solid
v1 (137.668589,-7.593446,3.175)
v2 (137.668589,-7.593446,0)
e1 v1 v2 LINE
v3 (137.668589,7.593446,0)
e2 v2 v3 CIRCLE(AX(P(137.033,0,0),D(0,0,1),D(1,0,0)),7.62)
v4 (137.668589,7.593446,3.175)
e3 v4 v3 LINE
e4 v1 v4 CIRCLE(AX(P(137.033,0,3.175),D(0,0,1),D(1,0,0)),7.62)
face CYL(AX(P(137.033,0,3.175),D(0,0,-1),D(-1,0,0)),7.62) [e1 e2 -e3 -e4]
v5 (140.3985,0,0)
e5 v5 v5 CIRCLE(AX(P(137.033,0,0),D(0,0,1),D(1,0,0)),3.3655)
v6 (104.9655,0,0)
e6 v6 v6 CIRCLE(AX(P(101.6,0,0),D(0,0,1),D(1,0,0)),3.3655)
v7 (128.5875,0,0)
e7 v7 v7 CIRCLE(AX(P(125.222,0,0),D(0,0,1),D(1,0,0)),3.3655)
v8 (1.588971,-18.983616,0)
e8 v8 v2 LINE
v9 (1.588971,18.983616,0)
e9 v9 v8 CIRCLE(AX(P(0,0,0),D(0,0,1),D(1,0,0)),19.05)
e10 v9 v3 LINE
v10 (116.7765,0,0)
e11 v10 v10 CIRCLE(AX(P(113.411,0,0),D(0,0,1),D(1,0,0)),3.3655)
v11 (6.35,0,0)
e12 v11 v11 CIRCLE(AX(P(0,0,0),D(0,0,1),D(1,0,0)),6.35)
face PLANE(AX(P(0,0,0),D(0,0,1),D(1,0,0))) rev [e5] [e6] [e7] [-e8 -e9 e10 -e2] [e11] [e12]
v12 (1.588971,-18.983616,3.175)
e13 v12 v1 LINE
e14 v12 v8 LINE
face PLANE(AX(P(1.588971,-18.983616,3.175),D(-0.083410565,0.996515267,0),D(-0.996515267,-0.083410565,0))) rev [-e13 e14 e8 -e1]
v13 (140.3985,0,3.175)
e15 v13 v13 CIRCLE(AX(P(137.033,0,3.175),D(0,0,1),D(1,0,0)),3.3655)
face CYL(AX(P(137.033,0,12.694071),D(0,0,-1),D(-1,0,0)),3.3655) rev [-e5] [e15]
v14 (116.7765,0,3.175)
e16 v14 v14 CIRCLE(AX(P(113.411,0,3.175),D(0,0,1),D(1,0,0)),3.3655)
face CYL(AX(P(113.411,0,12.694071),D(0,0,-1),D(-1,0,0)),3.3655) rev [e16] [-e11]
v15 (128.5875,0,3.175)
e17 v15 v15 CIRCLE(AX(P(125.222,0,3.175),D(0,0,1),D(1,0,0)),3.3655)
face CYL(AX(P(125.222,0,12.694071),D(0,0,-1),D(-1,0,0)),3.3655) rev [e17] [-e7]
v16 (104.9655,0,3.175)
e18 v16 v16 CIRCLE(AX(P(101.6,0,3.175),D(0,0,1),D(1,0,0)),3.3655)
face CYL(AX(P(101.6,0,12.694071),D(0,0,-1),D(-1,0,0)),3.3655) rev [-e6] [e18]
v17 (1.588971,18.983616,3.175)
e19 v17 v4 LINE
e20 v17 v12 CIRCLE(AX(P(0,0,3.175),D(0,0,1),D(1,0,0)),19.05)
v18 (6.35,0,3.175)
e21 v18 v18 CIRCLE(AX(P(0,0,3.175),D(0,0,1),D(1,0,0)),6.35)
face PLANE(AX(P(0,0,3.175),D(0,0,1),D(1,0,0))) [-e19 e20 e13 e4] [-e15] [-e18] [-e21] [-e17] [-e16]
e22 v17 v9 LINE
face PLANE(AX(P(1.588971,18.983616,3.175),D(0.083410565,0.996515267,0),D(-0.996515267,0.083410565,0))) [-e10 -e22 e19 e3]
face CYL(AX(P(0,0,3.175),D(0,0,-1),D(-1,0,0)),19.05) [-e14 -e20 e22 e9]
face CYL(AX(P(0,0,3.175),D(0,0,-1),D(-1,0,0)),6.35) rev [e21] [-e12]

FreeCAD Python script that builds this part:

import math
import FreeCAD as App
import Part
import Sketcher
Q = App.Units.Quantity

doc = App.newDocument("Part")
body = doc.addObject("PartDesign::Body", "Body")

sketch1 = body.newObject("Sketcher::SketchObject", "Sketch")
sketch1.AttachmentSupport = (doc.getObject("XY_Plane"), [""])
sketch1.MapMode = "FlatFace"
sketch1.addGeometry(Part.ArcOfCircle(Part.Circle(App.Vector(0, 0, 0), App.Vector(0, 0, 1), 19), math.radians(85), math.radians(275)), False)
sketch1.addGeometry(Part.LineSegment(App.Vector(2, -19, 0), App.Vector(138, -8, 0)), False)
sketch1.addGeometry(Part.ArcOfCircle(Part.Circle(App.Vector(137, 0, 0), App.Vector(0, 0, 1), 8), math.radians(-85), math.radians(85)), False)
sketch1.addGeometry(Part.LineSegment(App.Vector(138, 8, 0), App.Vector(2, 19, 0)), False)
sketch1.addGeometry(Part.Circle(App.Vector(0, 0, 0), App.Vector(0, 0, 1), 6), False)
sketch1.addConstraint(Sketcher.Constraint("Tangent", 0, 2, 1, 1))
sketch1.addConstraint(Sketcher.Constraint("Tangent", 1, 2, 2, 1))
sketch1.addConstraint(Sketcher.Constraint("Tangent", 2, 2, 3, 1))
sketch1.addConstraint(Sketcher.Constraint("Tangent", 3, 2, 0, 1))
sketch1.addConstraint(Sketcher.Constraint("Coincident", 0, 3, -1, 1))
sketch1.addConstraint(Sketcher.Constraint("Coincident", 4, 3, -1, 1))
sketch1.addConstraint(Sketcher.Constraint("PointOnObject", 2, 3, -1))
sketch1.addConstraint(Sketcher.Constraint("Diameter", 4, Q("0.5 in")))
sketch1.addConstraint(Sketcher.Constraint("Radius", 2, Q("0.3 in")))
sketch1.addConstraint(Sketcher.Constraint("Radius", 0, Q("0.75 in")))
sketch1.addConstraint(Sketcher.Constraint("DistanceX", -1, 1, 2, 3, Q("5.395 in")))
pad1 = body.newObject("PartDesign::Pad", "Pad")
pad1.Profile = sketch1
pad1.Length = Q("0.125 in")

sketch2 = body.newObject("Sketcher::SketchObject", "Sketch001")
sketch2.AttachmentSupport = (doc.getObject("XY_Plane"), [""])
sketch2.MapMode = "FlatFace"
sketch2.addGeometry(Part.Circle(App.Vector(137, 0, 0), App.Vector(0, 0, 1), 3.4), False)
sketch2.addGeometry(Part.Circle(App.Vector(125.2, 0, 0), App.Vector(0, 0, 1), 3.4), False)
sketch2.addGeometry(Part.Circle(App.Vector(113.4, 0, 0), App.Vector(0, 0, 1), 3.4), False)
sketch2.addGeometry(Part.Circle(App.Vector(101.6, 0, 0), App.Vector(0, 0, 1), 3.4), False)
sketch2.addConstraint(Sketcher.Constraint("Equal", 0, 1))
sketch2.addConstraint(Sketcher.Constraint("Equal", 1, 2))
sketch2.addConstraint(Sketcher.Constraint("Equal", 2, 3))
sketch2.addConstraint(Sketcher.Constraint("PointOnObject", 0, 3, -1))
sketch2.addConstraint(Sketcher.Constraint("PointOnObject", 1, 3, -1))
sketch2.addConstraint(Sketcher.Constraint("PointOnObject", 2, 3, -1))
sketch2.addConstraint(Sketcher.Constraint("PointOnObject", 3, 3, -1))
sketch2.addConstraint(Sketcher.Constraint("Diameter", 0, Q("0.265 in")))
sketch2.addConstraint(Sketcher.Constraint("DistanceX", -1, 1, 3, 3, Q("4 in")))
sketch2.addConstraint(Sketcher.Constraint("DistanceX", -1, 1, 1, 3, Q("4.93 in")))
sketch2.addConstraint(Sketcher.Constraint("DistanceX", 2, 3, 0, 3, Q("0.93 in")))
sketch2.addConstraint(Sketcher.Constraint("DistanceX", -1, 1, 0, 3, Q("5.395 in")))
pocket1 = body.newObject("PartDesign::Pocket", "Pocket")
pocket1.Profile = sketch2
pocket1.Length = Q("0.125 in")
pocket1.Reversed = True

doc.recompute()
